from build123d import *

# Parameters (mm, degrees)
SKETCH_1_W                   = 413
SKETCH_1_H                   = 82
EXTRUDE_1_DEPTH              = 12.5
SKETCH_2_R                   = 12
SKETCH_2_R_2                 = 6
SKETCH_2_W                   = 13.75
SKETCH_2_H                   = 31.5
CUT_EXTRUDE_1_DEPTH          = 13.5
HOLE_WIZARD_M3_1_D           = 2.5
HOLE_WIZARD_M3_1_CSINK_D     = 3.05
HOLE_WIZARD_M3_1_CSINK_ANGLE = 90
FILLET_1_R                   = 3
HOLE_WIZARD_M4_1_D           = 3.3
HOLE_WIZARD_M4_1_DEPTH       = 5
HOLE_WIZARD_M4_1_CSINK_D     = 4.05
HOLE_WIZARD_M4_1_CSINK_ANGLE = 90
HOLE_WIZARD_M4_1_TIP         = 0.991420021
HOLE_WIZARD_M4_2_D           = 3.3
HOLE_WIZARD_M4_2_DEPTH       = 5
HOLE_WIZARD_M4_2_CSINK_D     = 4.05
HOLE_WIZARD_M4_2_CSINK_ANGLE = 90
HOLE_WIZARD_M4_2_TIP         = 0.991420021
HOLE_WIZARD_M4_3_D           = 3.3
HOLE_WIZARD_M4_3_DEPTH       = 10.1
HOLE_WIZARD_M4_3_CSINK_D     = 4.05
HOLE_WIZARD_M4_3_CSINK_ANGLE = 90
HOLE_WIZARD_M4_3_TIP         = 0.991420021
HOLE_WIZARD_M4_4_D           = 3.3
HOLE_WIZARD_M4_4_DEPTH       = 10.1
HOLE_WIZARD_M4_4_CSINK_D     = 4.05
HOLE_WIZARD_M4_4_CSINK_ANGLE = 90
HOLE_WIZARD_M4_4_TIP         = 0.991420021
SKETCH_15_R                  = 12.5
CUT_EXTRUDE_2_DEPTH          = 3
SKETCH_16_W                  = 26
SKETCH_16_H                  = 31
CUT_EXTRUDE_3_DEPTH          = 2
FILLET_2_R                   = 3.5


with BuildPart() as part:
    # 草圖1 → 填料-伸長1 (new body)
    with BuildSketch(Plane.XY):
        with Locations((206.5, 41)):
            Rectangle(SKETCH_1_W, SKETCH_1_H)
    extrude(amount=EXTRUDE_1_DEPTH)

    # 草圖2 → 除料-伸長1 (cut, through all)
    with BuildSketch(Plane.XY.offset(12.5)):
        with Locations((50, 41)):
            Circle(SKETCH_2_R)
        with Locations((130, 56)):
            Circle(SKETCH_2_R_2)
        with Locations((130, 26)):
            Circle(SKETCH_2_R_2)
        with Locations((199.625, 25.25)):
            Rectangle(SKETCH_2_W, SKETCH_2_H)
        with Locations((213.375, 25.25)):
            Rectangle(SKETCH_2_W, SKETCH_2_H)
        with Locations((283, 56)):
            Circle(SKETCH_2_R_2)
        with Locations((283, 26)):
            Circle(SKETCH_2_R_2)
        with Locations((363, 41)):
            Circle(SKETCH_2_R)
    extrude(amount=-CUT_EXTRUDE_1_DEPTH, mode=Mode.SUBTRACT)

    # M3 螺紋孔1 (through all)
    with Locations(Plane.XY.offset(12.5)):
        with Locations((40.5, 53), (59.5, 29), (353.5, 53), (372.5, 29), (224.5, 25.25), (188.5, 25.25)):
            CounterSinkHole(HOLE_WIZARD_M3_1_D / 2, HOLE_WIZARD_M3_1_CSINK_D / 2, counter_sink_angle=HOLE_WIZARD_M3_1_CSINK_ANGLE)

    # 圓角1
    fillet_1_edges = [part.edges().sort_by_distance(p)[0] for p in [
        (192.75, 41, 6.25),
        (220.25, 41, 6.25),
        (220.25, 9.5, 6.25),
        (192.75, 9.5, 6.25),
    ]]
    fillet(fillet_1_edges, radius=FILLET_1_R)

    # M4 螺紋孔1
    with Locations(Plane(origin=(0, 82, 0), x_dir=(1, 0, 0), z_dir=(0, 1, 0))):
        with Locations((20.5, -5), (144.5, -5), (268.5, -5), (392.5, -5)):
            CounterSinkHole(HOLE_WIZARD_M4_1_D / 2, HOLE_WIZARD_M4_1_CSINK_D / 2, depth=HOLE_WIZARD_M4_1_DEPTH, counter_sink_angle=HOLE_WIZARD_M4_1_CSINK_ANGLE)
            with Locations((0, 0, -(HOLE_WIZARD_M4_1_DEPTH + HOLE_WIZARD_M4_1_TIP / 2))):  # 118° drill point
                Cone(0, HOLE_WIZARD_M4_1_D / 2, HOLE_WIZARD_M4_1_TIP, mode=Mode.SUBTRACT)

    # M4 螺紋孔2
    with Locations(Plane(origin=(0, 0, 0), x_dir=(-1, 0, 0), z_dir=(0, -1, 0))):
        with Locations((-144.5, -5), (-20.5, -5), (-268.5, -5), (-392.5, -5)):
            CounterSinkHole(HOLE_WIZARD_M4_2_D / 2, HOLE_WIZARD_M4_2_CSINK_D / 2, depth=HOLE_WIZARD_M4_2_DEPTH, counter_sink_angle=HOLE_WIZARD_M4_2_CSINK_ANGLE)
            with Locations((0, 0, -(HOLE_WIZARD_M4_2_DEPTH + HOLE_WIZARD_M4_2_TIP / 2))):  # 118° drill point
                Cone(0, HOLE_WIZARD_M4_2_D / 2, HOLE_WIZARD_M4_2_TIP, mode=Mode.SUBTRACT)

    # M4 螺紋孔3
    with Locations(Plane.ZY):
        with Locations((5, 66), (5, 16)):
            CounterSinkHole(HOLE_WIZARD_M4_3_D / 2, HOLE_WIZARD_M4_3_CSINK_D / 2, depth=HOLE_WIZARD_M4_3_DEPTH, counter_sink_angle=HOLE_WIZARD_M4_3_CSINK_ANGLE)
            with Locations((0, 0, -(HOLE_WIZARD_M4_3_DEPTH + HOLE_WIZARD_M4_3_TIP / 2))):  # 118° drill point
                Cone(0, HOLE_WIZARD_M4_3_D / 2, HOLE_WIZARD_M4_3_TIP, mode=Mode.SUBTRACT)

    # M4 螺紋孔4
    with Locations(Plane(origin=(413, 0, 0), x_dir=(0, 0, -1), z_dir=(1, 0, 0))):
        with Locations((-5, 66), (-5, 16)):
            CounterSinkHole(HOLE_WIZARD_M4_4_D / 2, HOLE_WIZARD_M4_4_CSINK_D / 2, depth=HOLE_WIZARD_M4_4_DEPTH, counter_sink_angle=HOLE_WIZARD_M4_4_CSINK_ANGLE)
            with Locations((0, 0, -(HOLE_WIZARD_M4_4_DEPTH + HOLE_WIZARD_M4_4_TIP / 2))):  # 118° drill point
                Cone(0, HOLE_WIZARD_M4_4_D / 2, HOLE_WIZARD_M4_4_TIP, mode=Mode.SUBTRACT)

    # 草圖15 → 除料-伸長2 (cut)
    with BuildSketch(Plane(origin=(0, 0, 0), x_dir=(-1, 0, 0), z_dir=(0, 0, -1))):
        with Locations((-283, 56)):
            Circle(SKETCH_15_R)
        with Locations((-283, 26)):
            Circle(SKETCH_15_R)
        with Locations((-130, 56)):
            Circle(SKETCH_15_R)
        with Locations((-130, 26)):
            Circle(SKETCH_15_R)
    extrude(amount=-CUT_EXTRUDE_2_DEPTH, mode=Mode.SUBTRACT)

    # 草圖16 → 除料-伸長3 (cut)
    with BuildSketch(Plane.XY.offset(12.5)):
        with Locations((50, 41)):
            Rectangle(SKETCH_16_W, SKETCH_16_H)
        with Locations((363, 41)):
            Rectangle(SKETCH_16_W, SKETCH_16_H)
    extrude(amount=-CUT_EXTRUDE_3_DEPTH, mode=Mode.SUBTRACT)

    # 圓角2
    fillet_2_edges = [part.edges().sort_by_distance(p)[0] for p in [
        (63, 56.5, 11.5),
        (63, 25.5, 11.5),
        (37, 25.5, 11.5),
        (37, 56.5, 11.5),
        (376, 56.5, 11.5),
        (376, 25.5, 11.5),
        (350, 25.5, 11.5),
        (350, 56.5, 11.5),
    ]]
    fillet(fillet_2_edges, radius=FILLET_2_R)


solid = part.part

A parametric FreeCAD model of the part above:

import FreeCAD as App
import Part
import Sketcher

V = App.Vector
Q = App.Units.Quantity


def edges_at(feature, points):
    """Names of the edges that pass closest to the given points."""
    edges = feature.Shape.Edges
    near = lambda p: min(range(len(edges)), key=lambda i: edges[i].distToShape(Part.Vertex(*p))[0])
    return sorted({f"Edge{near(p) + 1}" for p in points})


def add_polygon(sketch, points):
    """Adds a closed chain of lines whose ends are joined by coincident constraints."""
    first, n = sketch.GeometryCount, len(points)
    for a, b in zip(points, points[1:] + points[:1]):
        sketch.addGeometry(Part.LineSegment(App.Vector(*a, 0), App.Vector(*b, 0)), False)
    for i in range(n):
        sketch.addConstraint(Sketcher.Constraint("Coincident", first + i, 2, first + (i + 1) % n, 1))

doc = App.newDocument("Part")
params = doc.addObject("Spreadsheet::Sheet", "Params")
for row, (alias, value) in enumerate([
    ("sketch1_width", "413 mm"),
    ("sketch1_height", "82 mm"),
    ("pad1_length", "12.5 mm"),
    ("sketch2_diameter", "24 mm"),
    ("sketch2_diameter2", "12 mm"),
    ("sketch2_width", "27.5 mm"),
    ("sketch2_height", "31.5 mm"),
    ("sketch3_diameter", "2.5 mm"),
    ("hole_diameter", "2.5 mm"),
    ("hole_csink_diameter", "3.05 mm"),
    ("fillet_radius", "3 mm"),
    ("sketch4_diameter", "3.3 mm"),
    ("hole2_diameter", "3.3 mm"),
    ("hole2_depth", "5 mm"),
    ("hole2_csink_diameter", "4.05 mm"),
    ("sketch5_diameter", "3.3 mm"),
    ("hole3_diameter", "3.3 mm"),
    ("hole3_depth", "5 mm"),
    ("hole3_csink_diameter", "4.05 mm"),
    ("sketch6_diameter", "3.3 mm"),
    ("hole4_diameter", "3.3 mm"),
    ("hole4_depth", "10.1 mm"),
    ("hole4_csink_diameter", "4.05 mm"),
    ("sketch7_diameter", "3.3 mm"),
    ("hole5_diameter", "3.3 mm"),
    ("hole5_depth", "10.1 mm"),
    ("hole5_csink_diameter", "4.05 mm"),
    ("sketch8_diameter", "25 mm"),
    ("pocket2_length", "3 mm"),
    ("sketch9_width", "26 mm"),
    ("sketch9_height", "31 mm"),
    ("pocket3_length", "2 mm"),
    ("fillet2_radius", "3.5 mm"),
], start=1):
    params.set(f"A{row}", alias)
    params.set(f"B{row}", "=" + value)
    params.setAlias(f"B{row}", alias)

body = doc.addObject("PartDesign::Body", "Body")

# Sketch on XY plane
sketch1 = body.newObject("Sketcher::SketchObject", "Sketch")
sketch1.AttachmentSupport = (doc.getObject("XY_Plane"), [""])
sketch1.MapMode = "FlatFace"
add_polygon(sketch1, [(0, 82), (0, 0), (413, 0), (413, 82)])  # lines 0-3
sketch1.addConstraint([
    Sketcher.Constraint("Vertical", 0),
    Sketcher.Constraint("Horizontal", 1),
    Sketcher.Constraint("Vertical", 2),
    Sketcher.Constraint("Horizontal", 3),
    Sketcher.Constraint("Coincident", 0, 2, -1, 1),
    Sketcher.Constraint("DistanceX", 1, 1, 1, 2, Q("413 mm")),
    Sketcher.Constraint("DistanceY", 0, 2, 0, 1, Q("82 mm")),
])
sketch1.setExpression("Constraints[9]", "Params.sketch1_width")
sketch1.setExpression("Constraints[10]", "Params.sketch1_height")
pad1 = body.newObject("PartDesign::Pad", "Pad")
pad1.Profile = sketch1
pad1.setExpression("Length", "Params.pad1_length")

# Sketch on XY plane
sketch2 = body.newObject("Sketcher::SketchObject", "Sketch001")
sketch2.AttachmentSupport = (doc.getObject("XY_Plane"), [""])
sketch2.MapMode = "FlatFace"
sketch2.AttachmentOffset = App.Placement(V(0, 0, 12.5), App.Rotation())
sketch2.addGeometry(Part.Circle(V(50, 41, 0), V(0, 0, 1), 12), False)  # 0
sketch2.addGeometry(Part.Circle(V(130, 56, 0), V(0, 0, 1), 6), False)  # 1
sketch2.addGeometry(Part.Circle(V(130, 26, 0), V(0, 0, 1), 6), False)  # 2
add_polygon(sketch2, [(193, 41), (193, 10), (220, 10), (220, 41)])  # lines 3-6
sketch2.addGeometry(Part.Circle(V(283, 56, 0), V(0, 0, 1), 6), False)  # 7
sketch2.addGeometry(Part.Circle(V(283, 26, 0), V(0, 0, 1), 6), False)  # 8
sketch2.addGeometry(Part.Circle(V(363, 41, 0), V(0, 0, 1), 12), False)  # 9
sketch2.addConstraint([
    Sketcher.Constraint("Vertical", 3),
    Sketcher.Constraint("Horizontal", 4),
    Sketcher.Constraint("Vertical", 5),
    Sketcher.Constraint("Horizontal", 6),
    Sketcher.Constraint("Equal", 1, 2),
    Sketcher.Constraint("Equal", 2, 7),
    Sketcher.Constraint("Equal", 7, 8),
    Sketcher.Constraint("Equal", 0, 9),
    Sketcher.Constraint("Horizontal", 1, 3, 7, 3),
    Sketcher.Constraint("Horizontal", 2, 3, 8, 3),
    Sketcher.Constraint("Horizontal", 0, 3, 9, 3),
    Sketcher.Constraint("Horizontal", 9, 3, 5, 2),
    Sketcher.Constraint("Vertical", 1, 3, 2, 3),
    Sketcher.Constraint("Vertical", 7, 3, 8, 3),
    Sketcher.Constraint("Diameter", 0, Q("24 mm")),
    Sketcher.Constraint("Diameter", 1, Q("12 mm")),
    Sketcher.Constraint("DistanceX", 4, 1, 4, 2, Q("27.5 mm")),
    Sketcher.Constraint("DistanceY", 3, 2, 3, 1, Q("31.5 mm")),
    Sketcher.Constraint("DistanceX", -1, 1, 0, 3, Q("50 mm")),
    Sketcher.Constraint("DistanceY", -1, 1, 0, 3, Q("41 mm")),
    Sketcher.Constraint("DistanceX", -1, 1, 1, 3, Q("130 mm")),
    Sketcher.Constraint("DistanceY", -1, 1, 1, 3, Q("56 mm")),
    Sketcher.Constraint("DistanceY", -1, 1, 2, 3, Q("26 mm")),
    Sketcher.Constraint("DistanceX", -1, 1, 7, 3, Q("283 mm")),
    Sketcher.Constraint("DistanceX", -1, 1, 9, 3, Q("363 mm")),
    Sketcher.Constraint("DistanceX", -1, 1, 3, 2, Q("192.75 mm")),
])
sketch2.setExpression("Constraints[18]", "Params.sketch2_diameter")
sketch2.setExpression("Constraints[19]", "Params.sketch2_diameter2")
sketch2.setExpression("Constraints[20]", "Params.sketch2_width")
sketch2.setExpression("Constraints[21]", "Params.sketch2_height")
pocket1 = body.newObject("PartDesign::Pocket", "Pocket")
pocket1.Profile = sketch2
pocket1.Type = "ThroughAll"

# Sketch on XY plane
sketch3 = body.newObject("Sketcher::SketchObject", "Sketch002")
sketch3.AttachmentSupport = (doc.getObject("XY_Plane"), [""])
sketch3.MapMode = "FlatFace"
sketch3.AttachmentOffset = App.Placement(V(0, 0, 12.5), App.Rotation())
sketch3.addGeometry([
    Part.Circle(V(40.5, 53, 0), V(0, 0, 1), 1.2),  # 0
    Part.Circle(V(59.5, 29, 0), V(0, 0, 1), 1.2),  # 1
    Part.Circle(V(353.5, 53, 0), V(0, 0, 1), 1.2),  # 2
    Part.Circle(V(372.5, 29, 0), V(0, 0, 1), 1.2),  # 3
    Part.Circle(V(224.5, 25.2, 0), V(0, 0, 1), 1.2),  # 4
    Part.Circle(V(188.5, 25.2, 0), V(0, 0, 1), 1.2),  # 5
], False)
sketch3.addConstraint([
    Sketcher.Constraint("Equal", 0, 1),
    Sketcher.Constraint("Equal", 1, 2),
    Sketcher.Constraint("Equal", 2, 3),
    Sketcher.Constraint("Equal", 3, 4),
    Sketcher.Constraint("Equal", 4, 5),
    Sketcher.Constraint("Horizontal", 0, 3, 2, 3),
    Sketcher.Constraint("Horizontal", 1, 3, 3, 3),
    Sketcher.Constraint("Horizontal", 4, 3, 5, 3),
    Sketcher.Constraint("Diameter", 0, Q("2.5 mm")),
    Sketcher.Constraint("DistanceY", -1, 1, 0, 3, Q("53 mm")),
    Sketcher.Constraint("DistanceY", -1, 1, 1, 3, Q("29 mm")),
    Sketcher.Constraint("DistanceX", 0, 3, 1, 3, Q("19 mm")),
    Sketcher.Constraint("DistanceX", 1, 3, 2, 3, Q("294 mm")),
    Sketcher.Constraint("DistanceX", 2, 3, 3, 3, Q("19 mm")),
    Sketcher.Constraint("DistanceX", 4, 3, 2, 3, Q("129 mm")),
    Sketcher.Constraint("DistanceX", 5, 3, 4, 3, Q("36 mm")),
    Sketcher.Constraint("DistanceX", -1, 1, 0, 3, Q("40.5 mm")),
    Sketcher.Constraint("DistanceY", -1, 1, 4, 3, Q("25.25 mm")),
])
sketch3.setExpression("Constraints[8]", "Params.sketch3_diameter")
doc.recompute()
hole = body.newObject("PartDesign::Hole", "Hole")
hole.Profile = sketch3
hole.ThreadType = "None"
hole.setExpression("Diameter", "Params.hole_diameter")
hole.DepthType = "ThroughAll"
hole.HoleCutType = "Countersink"
hole.setExpression("HoleCutDiameter", "Params.hole_csink_diameter")
hole.HoleCutCountersinkAngle = 90
doc.recompute()

fillet = body.newObject("PartDesign::Fillet", "Fillet")
fillet.Base = (hole, edges_at(hole, [
    (192.75, 41, 6.25),
    (220.25, 41, 6.25),
    (220.25, 9.5, 6.25),
    (192.75, 9.5, 6.25),
]))
fillet.setExpression("Radius", "Params.fillet_radius")

# Sketch on XZ plane
sketch4 = body.newObject("Sketcher::SketchObject", "Sketch003")
sketch4.AttachmentSupport = (doc.getObject("XZ_Plane"), [""])
sketch4.MapMode = "FlatFace"
sketch4.AttachmentOffset = App.Placement(V(0, 0, -82), App.Rotation())
sketch4.addGeometry([
    Part.Circle(V(20.5, 5, 0), V(0, 0, 1), 1.6),
    Part.Circle(V(144.5, 5, 0), V(0, 0, 1), 1.6),
    Part.Circle(V(268.5, 5, 0), V(0, 0, 1), 1.6),
    Part.Circle(V(392.5, 5, 0), V(0, 0, 1), 1.6),
], False)
sketch4.addConstraint([
    Sketcher.Constraint("Equal", 0, 1),
    Sketcher.Constraint("Equal", 1, 2),
    Sketcher.Constraint("Equal", 2, 3),
    Sketcher.Constraint("Horizontal", 0, 3, 1, 3),
    Sketcher.Constraint("Horizontal", 1, 3, 2, 3),
    Sketcher.Constraint("Horizontal", 2, 3, 3, 3),
    Sketcher.Constraint("Diameter", 0, Q("3.3 mm")),
    Sketcher.Constraint("DistanceY", -1, 1, 0, 3, Q("5 mm")),
    Sketcher.Constraint("DistanceX", 0, 3, 1, 3, Q("124 mm")),
    Sketcher.Constraint("DistanceX", 1, 3, 2, 3, Q("124 mm")),
    Sketcher.Constraint("DistanceX", 2, 3, 3, 3, Q("124 mm")),
    Sketcher.Constraint("DistanceX", -1, 1, 0, 3, Q("20.5 mm")),
])
sketch4.setExpression("Constraints[6]", "Params.sketch4_diameter")
doc.recompute()
hole2 = body.newObject("PartDesign::Hole", "Hole001")
hole2.Profile = sketch4
hole2.ThreadType = "None"
hole2.setExpression("Diameter", "Params.hole2_diameter")
hole2.DepthType = "Dimension"
hole2.setExpression("Depth", "Params.hole2_depth")
hole2.DrillPoint = "Angled"
hole2.DrillPointAngle = 118
hole2.HoleCutType = "Countersink"
hole2.setExpression("HoleCutDiameter", "Params.hole2_csink_diameter")
hole2.HoleCutCountersinkAngle = 90
hole2.Reversed = True

# Sketch on XZ plane
sketch5 = body.newObject("Sketcher::SketchObject", "Sketch004")
sketch5.AttachmentSupport = (doc.getObject("XZ_Plane"), [""])
sketch5.MapMode = "FlatFace"
sketch5.addGeometry([
    Part.Circle(V(144.5, 5, 0), V(0, 0, 1), 1.6),
    Part.Circle(V(20.5, 5, 0), V(0, 0, 1), 1.6),
    Part.Circle(V(268.5, 5, 0), V(0, 0, 1), 1.6),
    Part.Circle(V(392.5, 5, 0), V(0, 0, 1), 1.6),
], False)
sketch5.addConstraint([
    Sketcher.Constraint("Equal", 0, 1),
    Sketcher.Constraint("Equal", 1, 2),
    Sketcher.Constraint("Equal", 2, 3),
    Sketcher.Constraint("Horizontal", 0, 3, 1, 3),
    Sketcher.Constraint("Horizontal", 1, 3, 2, 3),
    Sketcher.Constraint("Horizontal", 2, 3, 3, 3),
    Sketcher.Constraint("Diameter", 0, Q("3.3 mm")),
    Sketcher.Constraint("DistanceY", -1, 1, 0, 3, Q("5 mm")),
    Sketcher.Constraint("DistanceX", 1, 3, 0, 3, Q("124 mm")),
    Sketcher.Constraint("DistanceX", 0, 3, 2, 3, Q("124 mm")),
    Sketcher.Constraint("DistanceX", 2, 3, 3, 3, Q("124 mm")),
    Sketcher.Constraint("DistanceX", -1, 1, 0, 3, Q("144.5 mm")),
])
sketch5.setExpression("Constraints[6]", "Params.sketch5_diameter")
doc.recompute()
hole3 = body.newObject("PartDesign::Hole", "Hole002")
hole3.Profile = sketch5
hole3.ThreadType = "None"
hole3.setExpression("Diameter", "Params.hole3_diameter")
hole3.DepthType = "Dimension"
hole3.setExpression("Depth", "Params.hole3_depth")
hole3.DrillPoint = "Angled"
hole3.DrillPointAngle = 118
hole3.HoleCutType = "Countersink"
hole3.setExpression("HoleCutDiameter", "Params.hole3_csink_diameter")
hole3.HoleCutCountersinkAngle = 90

# Sketch on YZ plane
sketch6 = body.newObject("Sketcher::SketchObject", "Sketch005")
sketch6.AttachmentSupport = (doc.getObject("YZ_Plane"), [""])
sketch6.MapMode = "FlatFace"
sketch6.addGeometry([
    Part.Circle(V(66, 5, 0), V(0, 0, 1), 1.6),
    Part.Circle(V(16, 5, 0), V(0, 0, 1), 1.6),
], False)
sketch6.addConstraint([
    Sketcher.Constraint("Equal", 0, 1),
    Sketcher.Constraint("Horizontal", 0, 3, 1, 3),
    Sketcher.Constraint("Diameter", 0, Q("3.3 mm")),
    Sketcher.Constraint("DistanceX", -1, 1, 0, 3, Q("66 mm")),
    Sketcher.Constraint("DistanceY", -1, 1, 0, 3, Q("5 mm")),
    Sketcher.Constraint("DistanceX", -1, 1, 1, 3, Q("16 mm")),
])
sketch6.setExpression("Constraints[2]", "Params.sketch6_diameter")
doc.recompute()
hole4 = body.newObject("PartDesign::Hole", "Hole003")
hole4.Profile = sketch6
hole4.ThreadType = "None"
hole4.setExpression("Diameter", "Params.hole4_diameter")
hole4.DepthType = "Dimension"
hole4.setExpression("Depth", "Params.hole4_depth")
hole4.DrillPoint = "Angled"
hole4.DrillPointAngle = 118
hole4.HoleCutType = "Countersink"
hole4.setExpression("HoleCutDiameter", "Params.hole4_csink_diameter")
hole4.HoleCutCountersinkAngle = 90
hole4.Reversed = True

# Sketch on YZ plane
sketch7 = body.newObject("Sketcher::SketchObject", "Sketch006")
sketch7.AttachmentSupport = (doc.getObject("YZ_Plane"), [""])
sketch7.MapMode = "FlatFace"
sketch7.AttachmentOffset = App.Placement(V(0, 0, 413), App.Rotation())
sketch7.addGeometry([
    Part.Circle(V(66, 5, 0), V(0, 0, 1), 1.6),
    Part.Circle(V(16, 5, 0), V(0, 0, 1), 1.6),
], False)
sketch7.addConstraint([
    Sketcher.Constraint("Equal", 0, 1),
    Sketcher.Constraint("Horizontal", 0, 3, 1, 3),
    Sketcher.Constraint("Diameter", 0, Q("3.3 mm")),
    Sketcher.Constraint("DistanceX", -1, 1, 0, 3, Q("66 mm")),
    Sketcher.Constraint("DistanceY", -1, 1, 0, 3, Q("5 mm")),
    Sketcher.Constraint("DistanceX", -1, 1, 1, 3, Q("16 mm")),
])
sketch7.setExpression("Constraints[2]", "Params.sketch7_diameter")
doc.recompute()
hole5 = body.newObject("PartDesign::Hole", "Hole004")
hole5.Profile = sketch7
hole5.ThreadType = "None"
hole5.setExpression("Diameter", "Params.hole5_diameter")
hole5.DepthType = "Dimension"
hole5.setExpression("Depth", "Params.hole5_depth")
hole5.DrillPoint = "Angled"
hole5.DrillPointAngle = 118
hole5.HoleCutType = "Countersink"
hole5.setExpression("HoleCutDiameter", "Params.hole5_csink_diameter")
hole5.HoleCutCountersinkAngle = 90

# Sketch on XY plane
sketch8 = body.newObject("Sketcher::SketchObject", "Sketch007")
sketch8.AttachmentSupport = (doc.getObject("XY_Plane"), [""])
sketch8.MapMode = "FlatFace"
sketch8.addGeometry([
    Part.Circle(V(283, 56, 0), V(0, 0, 1), 12),
    Part.Circle(V(283, 26, 0), V(0, 0, 1), 12),
    Part.Circle(V(130, 56, 0), V(0, 0, 1), 12),
    Part.Circle(V(130, 26, 0), V(0, 0, 1), 12),
], False)
sketch8.addConstraint([
    Sketcher.Constraint("Equal", 0, 1),
    Sketcher.Constraint("Equal", 1, 2),
    Sketcher.Constraint("Equal", 2, 3),
    Sketcher.Constraint("Horizontal", 0, 3, 2, 3),
    Sketcher.Constraint("Horizontal", 1, 3, 3, 3),
    Sketcher.Constraint("Vertical", 0, 3, 1, 3),
    Sketcher.Constraint("Vertical", 2, 3, 3, 3),
    Sketcher.Constraint("Diameter", 0, Q("25 mm")),
    Sketcher.Constraint("DistanceX", -1, 1, 0, 3, Q("283 mm")),
    Sketcher.Constraint("DistanceY", -1, 1, 0, 3, Q("56 mm")),
    Sketcher.Constraint("DistanceY", -1, 1, 1, 3, Q("26 mm")),
    Sketcher.Constraint("DistanceX", -1, 1, 2, 3, Q("130 mm")),
])
sketch8.setExpression("Constraints[7]", "Params.sketch8_diameter")
pocket2 = body.newObject("PartDesign::Pocket", "Pocket001")
pocket2.Profile = sketch8
pocket2.setExpression("Length", "Params.pocket2_length")
pocket2.Reversed = True

# Sketch on XY plane
sketch9 = body.newObject("Sketcher::SketchObject", "Sketch008")
sketch9.AttachmentSupport = (doc.getObject("XY_Plane"), [""])
sketch9.MapMode = "FlatFace"
sketch9.AttachmentOffset = App.Placement(V(0, 0, 12.5), App.Rotation())
add_polygon(sketch9, [(37, 56), (37, 26), (63, 26), (63, 56)])  # lines 0-3
add_polygon(sketch9, [(350, 56), (350, 26), (376, 26), (376, 56)])  # lines 4-7
sketch9.addConstraint([
    Sketcher.Constraint("Vertical", 0),
    Sketcher.Constraint("Horizontal", 1),
    Sketcher.Constraint("Vertical", 2),
    Sketcher.Constraint("Horizontal", 3),
    Sketcher.Constraint("Vertical", 4),
    Sketcher.Constraint("Horizontal", 5),
    Sketcher.Constraint("Vertical", 6),
    Sketcher.Constraint("Horizontal", 7),
    Sketcher.Constraint("Horizontal", 1, 2, 4, 2),
    Sketcher.Constraint("Horizontal", 3, 2, 6, 2),
    Sketcher.Constraint("Equal", 3, 5),
    Sketcher.Constraint("DistanceX", 1, 1, 1, 2, Q("26 mm")),
    Sketcher.Constraint("DistanceY", 0, 2, 0, 1, Q("31 mm")),
    Sketcher.Constraint("DistanceX", -1, 1, 0, 2, Q("37 mm")),
    Sketcher.Constraint("DistanceX", -1, 1, 4, 2, Q("350 mm")),
    Sketcher.Constraint("DistanceY", -1, 1, 0, 2, Q("25.5 mm")),
])
sketch9.setExpression("Constraints[19]", "Params.sketch9_width")
sketch9.setExpression("Constraints[20]", "Params.sketch9_height")
pocket3 = body.newObject("PartDesign::Pocket", "Pocket002")
pocket3.Profile = sketch9
pocket3.setExpression("Length", "Params.pocket3_length")
doc.recompute()

fillet2 = body.newObject("PartDesign::Fillet", "Fillet001")
fillet2.Base = (pocket3, edges_at(pocket3, [
    (63, 56.5, 11.5),
    (63, 25.5, 11.5),
    (37, 25.5, 11.5),
    (37, 56.5, 11.5),
    (376, 56.5, 11.5),
    (376, 25.5, 11.5),
    (350, 25.5, 11.5),
    (350, 56.5, 11.5),
]))
fillet2.setExpression("Radius", "Params.fillet2_radius")

doc.recompute()
